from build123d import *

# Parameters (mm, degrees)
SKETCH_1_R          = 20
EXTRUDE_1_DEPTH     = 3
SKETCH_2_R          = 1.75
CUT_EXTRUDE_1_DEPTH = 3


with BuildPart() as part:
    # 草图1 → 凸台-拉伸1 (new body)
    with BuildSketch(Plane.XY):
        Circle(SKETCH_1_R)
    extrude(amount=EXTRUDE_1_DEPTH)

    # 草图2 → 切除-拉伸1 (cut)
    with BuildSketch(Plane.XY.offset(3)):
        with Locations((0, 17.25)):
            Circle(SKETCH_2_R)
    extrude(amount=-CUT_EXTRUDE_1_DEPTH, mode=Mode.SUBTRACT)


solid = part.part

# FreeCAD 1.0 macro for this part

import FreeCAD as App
import Part
import Sketcher

V = App.Vector

doc = App.newDocument("Part")
body = doc.addObject("PartDesign::Body", "Body")

sketch1 = body.newObject("Sketcher::SketchObject", "Sketch")
sketch1.AttachmentSupport = (doc.getObject("XY_Plane"), [""])
sketch1.MapMode = "FlatFace"
sketch1.addGeometry(Part.Circle(V(0, 0, 0), V(0, 0, 1), 20), False)
sketch1.addConstraint(Sketcher.Constraint("Coincident", 0, 3, -1, 1))
sketch1.addConstraint(Sketcher.Constraint("Diameter", 0, 40.0))
pad1 = body.newObject("PartDesign::Pad", "Pad")
pad1.Profile = sketch1
pad1.Length = 3

sketch2 = body.newObject("Sketcher::SketchObject", "Sketch001")
sketch2.AttachmentSupport = (doc.getObject("XY_Plane"), [""])
sketch2.MapMode = "FlatFace"
sketch2.AttachmentOffset = App.Placement(V(0, 0, 3), App.Rotation())
sketch2.addGeometry(Part.Circle(V(0, 17.25, 0), V(0, 0, 1), 1.75), False)
sketch2.addConstraint(Sketcher.Constraint("PointOnObject", 0, 3, -2))
sketch2.addConstraint(Sketcher.Constraint("Diameter", 0, 3.5))
sketch2.addConstraint(Sketcher.Constraint("DistanceY", -1, 1, 0, 3, 17.25))
pocket1 = body.newObject("PartDesign::Pocket", "Pocket")
pocket1.Profile = sketch2
pocket1.Length = 3

doc.recompute()
